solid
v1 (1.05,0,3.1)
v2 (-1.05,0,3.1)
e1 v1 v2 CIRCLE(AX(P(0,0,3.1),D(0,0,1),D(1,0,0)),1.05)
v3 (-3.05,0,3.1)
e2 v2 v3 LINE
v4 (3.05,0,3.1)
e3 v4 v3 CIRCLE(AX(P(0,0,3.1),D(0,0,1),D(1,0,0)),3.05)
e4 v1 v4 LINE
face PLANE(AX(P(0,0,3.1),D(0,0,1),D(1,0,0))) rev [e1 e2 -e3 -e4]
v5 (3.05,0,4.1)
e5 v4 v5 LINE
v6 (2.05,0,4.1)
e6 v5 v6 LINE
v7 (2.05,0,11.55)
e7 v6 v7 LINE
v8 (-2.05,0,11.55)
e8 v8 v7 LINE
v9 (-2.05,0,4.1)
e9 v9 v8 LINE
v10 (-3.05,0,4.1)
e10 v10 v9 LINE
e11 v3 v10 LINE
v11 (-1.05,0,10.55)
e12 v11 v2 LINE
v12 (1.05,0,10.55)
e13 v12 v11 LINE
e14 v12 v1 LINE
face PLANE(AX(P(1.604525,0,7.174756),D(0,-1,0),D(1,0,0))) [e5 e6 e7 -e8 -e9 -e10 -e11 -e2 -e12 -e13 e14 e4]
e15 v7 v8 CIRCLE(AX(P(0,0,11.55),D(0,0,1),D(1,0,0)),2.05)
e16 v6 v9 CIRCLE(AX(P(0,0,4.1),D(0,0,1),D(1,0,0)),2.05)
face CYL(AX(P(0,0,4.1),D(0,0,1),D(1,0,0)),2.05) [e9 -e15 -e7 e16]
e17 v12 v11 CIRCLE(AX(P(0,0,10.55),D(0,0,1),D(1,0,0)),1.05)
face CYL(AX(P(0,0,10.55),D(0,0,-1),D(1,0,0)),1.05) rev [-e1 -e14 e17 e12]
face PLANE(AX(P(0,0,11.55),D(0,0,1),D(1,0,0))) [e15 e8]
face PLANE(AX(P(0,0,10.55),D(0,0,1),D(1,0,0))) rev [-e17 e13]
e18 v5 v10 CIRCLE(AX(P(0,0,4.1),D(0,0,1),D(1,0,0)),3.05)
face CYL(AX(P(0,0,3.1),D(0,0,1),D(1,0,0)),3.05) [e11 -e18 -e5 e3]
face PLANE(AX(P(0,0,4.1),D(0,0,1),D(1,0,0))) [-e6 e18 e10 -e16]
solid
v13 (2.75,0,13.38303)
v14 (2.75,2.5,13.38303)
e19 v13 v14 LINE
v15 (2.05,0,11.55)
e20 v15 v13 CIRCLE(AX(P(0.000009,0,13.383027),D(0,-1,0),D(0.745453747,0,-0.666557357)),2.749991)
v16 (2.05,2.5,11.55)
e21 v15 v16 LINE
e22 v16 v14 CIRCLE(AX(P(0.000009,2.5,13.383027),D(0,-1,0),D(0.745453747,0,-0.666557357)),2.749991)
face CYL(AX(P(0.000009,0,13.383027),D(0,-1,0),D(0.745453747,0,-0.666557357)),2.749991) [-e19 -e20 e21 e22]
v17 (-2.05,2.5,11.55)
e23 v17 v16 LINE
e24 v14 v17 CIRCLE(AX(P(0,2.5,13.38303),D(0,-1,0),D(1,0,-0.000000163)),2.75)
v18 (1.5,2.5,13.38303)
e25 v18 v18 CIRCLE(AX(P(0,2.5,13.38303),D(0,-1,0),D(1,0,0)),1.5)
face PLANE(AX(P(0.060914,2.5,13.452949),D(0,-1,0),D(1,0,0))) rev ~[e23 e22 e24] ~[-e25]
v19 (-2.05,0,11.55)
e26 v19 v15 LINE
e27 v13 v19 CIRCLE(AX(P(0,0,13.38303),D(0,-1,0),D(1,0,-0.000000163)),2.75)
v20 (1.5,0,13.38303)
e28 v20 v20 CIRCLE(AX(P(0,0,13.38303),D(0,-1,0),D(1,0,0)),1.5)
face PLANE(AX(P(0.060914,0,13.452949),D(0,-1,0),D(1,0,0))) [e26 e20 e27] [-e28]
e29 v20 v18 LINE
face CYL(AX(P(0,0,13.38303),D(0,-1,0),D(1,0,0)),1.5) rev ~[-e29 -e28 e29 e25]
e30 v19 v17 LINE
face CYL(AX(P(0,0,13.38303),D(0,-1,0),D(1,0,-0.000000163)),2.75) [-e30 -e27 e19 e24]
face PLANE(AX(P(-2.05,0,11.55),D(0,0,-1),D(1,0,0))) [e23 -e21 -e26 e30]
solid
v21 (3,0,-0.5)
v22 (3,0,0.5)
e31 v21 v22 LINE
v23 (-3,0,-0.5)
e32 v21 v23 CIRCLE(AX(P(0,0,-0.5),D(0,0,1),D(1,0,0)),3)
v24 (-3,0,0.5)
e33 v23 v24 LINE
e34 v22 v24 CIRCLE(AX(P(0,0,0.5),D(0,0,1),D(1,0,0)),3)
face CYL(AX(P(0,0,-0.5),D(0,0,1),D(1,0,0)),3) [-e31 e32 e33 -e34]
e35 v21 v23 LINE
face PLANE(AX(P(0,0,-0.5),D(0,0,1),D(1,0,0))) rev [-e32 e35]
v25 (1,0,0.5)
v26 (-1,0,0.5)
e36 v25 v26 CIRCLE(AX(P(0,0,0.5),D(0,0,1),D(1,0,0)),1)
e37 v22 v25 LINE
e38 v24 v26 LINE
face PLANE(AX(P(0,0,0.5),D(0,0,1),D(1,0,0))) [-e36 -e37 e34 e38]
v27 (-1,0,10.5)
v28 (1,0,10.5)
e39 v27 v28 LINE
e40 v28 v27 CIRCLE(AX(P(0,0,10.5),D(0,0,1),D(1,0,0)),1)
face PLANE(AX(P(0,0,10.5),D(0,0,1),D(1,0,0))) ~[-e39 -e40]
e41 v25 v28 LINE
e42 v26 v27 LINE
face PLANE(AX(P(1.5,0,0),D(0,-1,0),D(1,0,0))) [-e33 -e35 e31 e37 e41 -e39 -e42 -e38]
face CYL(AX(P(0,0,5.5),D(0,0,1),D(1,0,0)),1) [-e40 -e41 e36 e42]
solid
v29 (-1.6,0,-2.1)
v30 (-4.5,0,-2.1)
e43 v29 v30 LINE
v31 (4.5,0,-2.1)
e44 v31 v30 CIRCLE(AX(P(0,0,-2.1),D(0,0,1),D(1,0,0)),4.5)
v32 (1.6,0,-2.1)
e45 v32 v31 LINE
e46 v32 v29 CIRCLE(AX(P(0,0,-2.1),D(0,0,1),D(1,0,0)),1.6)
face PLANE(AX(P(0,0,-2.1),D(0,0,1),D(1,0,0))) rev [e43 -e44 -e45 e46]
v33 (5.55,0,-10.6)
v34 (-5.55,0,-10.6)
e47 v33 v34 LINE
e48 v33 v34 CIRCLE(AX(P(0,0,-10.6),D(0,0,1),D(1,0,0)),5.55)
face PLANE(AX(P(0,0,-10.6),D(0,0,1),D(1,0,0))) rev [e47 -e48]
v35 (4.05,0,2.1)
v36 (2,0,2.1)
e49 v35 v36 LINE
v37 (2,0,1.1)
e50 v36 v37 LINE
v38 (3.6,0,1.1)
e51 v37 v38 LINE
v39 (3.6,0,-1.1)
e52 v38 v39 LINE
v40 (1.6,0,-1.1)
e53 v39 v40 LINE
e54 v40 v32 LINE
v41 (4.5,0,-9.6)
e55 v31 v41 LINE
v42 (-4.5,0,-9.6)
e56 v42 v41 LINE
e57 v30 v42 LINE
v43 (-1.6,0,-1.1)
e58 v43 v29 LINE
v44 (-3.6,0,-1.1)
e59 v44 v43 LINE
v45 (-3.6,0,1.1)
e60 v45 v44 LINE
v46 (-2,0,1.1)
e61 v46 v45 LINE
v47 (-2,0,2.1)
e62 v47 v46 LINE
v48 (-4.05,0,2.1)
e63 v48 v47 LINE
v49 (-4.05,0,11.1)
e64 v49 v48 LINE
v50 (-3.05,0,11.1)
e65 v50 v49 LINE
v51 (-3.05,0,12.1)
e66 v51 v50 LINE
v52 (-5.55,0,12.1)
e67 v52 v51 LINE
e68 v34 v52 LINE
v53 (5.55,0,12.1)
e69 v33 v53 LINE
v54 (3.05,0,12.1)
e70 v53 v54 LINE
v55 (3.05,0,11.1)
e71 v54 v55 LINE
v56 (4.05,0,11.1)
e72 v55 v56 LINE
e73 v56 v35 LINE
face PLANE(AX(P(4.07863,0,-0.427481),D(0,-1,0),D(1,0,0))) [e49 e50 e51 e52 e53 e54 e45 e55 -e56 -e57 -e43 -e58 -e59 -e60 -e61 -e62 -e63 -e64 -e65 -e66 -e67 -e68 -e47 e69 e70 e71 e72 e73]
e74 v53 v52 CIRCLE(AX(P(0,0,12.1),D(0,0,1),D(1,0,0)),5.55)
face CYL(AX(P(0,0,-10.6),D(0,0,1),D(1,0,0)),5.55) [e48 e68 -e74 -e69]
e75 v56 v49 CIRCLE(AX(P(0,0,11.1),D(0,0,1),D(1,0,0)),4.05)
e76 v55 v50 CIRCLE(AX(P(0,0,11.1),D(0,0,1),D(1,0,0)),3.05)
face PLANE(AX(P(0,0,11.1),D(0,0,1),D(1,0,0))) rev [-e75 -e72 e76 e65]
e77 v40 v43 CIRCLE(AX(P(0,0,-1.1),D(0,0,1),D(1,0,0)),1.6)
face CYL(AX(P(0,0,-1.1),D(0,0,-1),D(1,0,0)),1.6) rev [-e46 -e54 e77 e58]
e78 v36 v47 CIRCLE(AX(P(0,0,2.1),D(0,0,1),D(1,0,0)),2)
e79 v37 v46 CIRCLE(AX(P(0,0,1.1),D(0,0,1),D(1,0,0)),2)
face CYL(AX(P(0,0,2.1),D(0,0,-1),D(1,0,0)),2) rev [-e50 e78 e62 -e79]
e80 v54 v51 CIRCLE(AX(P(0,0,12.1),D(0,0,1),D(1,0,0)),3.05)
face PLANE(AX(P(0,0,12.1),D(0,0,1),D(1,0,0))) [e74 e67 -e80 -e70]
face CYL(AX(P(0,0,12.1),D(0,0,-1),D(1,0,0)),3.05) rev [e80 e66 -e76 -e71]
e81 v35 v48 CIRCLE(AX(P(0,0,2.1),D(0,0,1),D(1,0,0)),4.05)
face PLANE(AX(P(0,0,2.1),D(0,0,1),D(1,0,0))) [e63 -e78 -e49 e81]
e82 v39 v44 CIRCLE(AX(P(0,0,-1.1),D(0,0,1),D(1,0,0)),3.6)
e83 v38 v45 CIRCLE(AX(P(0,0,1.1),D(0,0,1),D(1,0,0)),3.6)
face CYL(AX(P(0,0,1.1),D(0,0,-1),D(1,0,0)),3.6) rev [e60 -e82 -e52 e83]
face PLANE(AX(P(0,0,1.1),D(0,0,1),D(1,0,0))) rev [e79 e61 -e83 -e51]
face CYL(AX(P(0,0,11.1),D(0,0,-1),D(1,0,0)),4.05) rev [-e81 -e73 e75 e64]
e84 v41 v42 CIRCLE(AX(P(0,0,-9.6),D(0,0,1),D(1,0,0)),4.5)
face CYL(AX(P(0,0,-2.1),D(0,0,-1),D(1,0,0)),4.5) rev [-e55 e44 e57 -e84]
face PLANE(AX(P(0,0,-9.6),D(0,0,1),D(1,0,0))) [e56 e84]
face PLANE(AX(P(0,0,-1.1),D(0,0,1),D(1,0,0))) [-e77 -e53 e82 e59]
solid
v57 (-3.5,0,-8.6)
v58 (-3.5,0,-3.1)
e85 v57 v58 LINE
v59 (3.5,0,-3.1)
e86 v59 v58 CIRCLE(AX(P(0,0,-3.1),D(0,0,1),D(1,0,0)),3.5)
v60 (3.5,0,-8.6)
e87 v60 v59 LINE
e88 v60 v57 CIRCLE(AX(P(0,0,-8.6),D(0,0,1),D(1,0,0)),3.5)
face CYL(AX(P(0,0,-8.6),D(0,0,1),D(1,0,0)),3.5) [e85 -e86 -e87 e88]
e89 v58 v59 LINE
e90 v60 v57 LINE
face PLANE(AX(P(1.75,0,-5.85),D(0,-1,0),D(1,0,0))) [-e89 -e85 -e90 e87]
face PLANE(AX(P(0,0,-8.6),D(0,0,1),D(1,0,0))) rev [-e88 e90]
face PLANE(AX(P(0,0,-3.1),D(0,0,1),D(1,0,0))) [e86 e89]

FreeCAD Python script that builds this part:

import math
import FreeCAD as App
import Part
import Sketcher
from FreeCAD import Vector
Q = App.Units.Quantity

doc = App.newDocument("Part")
body = doc.addObject("PartDesign::Body", "Body")
body.AllowCompound = True

# Sketch on XZ plane
sketch1 = body.newObject("Sketcher::SketchObject", "Sketch")
sketch1.AttachmentSupport = (doc.getObject("XZ_Plane"), [""])
sketch1.MapMode = "FlatFace"
sketch1.addGeometry(Part.LineSegment(Vector(3.5, -3.1, 0), Vector(0, -3.1, 0)), False)
sketch1.addGeometry(Part.LineSegment(Vector(0, -3.1, 0), Vector(0, -8.6, 0)), False)
sketch1.addGeometry(Part.LineSegment(Vector(0, -8.6, 0), Vector(3.5, -8.6, 0)), False)
sketch1.addGeometry(Part.LineSegment(Vector(3.5, -8.6, 0), Vector(3.5, -3.1, 0)), False)
sketch1.addGeometry(Part.LineSegment(Vector(3, -0.5, 0), Vector(3, 0.5, 0)), False)
sketch1.addGeometry(Part.LineSegment(Vector(3, 0.5, 0), Vector(1, 0.5, 0)), False)
sketch1.addGeometry(Part.LineSegment(Vector(1, 0.5, 0), Vector(1, 10.5, 0)), False)
sketch1.addGeometry(Part.LineSegment(Vector(1, 10.5, 0), Vector(0, 10.5, 0)), False)
sketch1.addGeometry(Part.LineSegment(Vector(0, 10.5, 0), Vector(0, -0.5, 0)), False)
sketch1.addGeometry(Part.LineSegment(Vector(0, -0.5, 0), Vector(3, -0.5, 0)), False)
sketch1.addGeometry(Part.LineSegment(Vector(0, 10.6, 0), Vector(1.1, 10.6, 0)), False)
sketch1.addGeometry(Part.LineSegment(Vector(1.1, 10.6, 0), Vector(1.1, 3.1, 0)), False)
sketch1.addGeometry(Part.LineSegment(Vector(1.1, 3.1, 0), Vector(3, 3.1, 0)), False)
sketch1.addGeometry(Part.LineSegment(Vector(3, 3.1, 0), Vector(3, 4.1, 0)), False)
sketch1.addGeometry(Part.LineSegment(Vector(3, 4.1, 0), Vector(2, 4.1, 0)), False)
sketch1.addGeometry(Part.LineSegment(Vector(2, 4.1, 0), Vector(2, 11.6, 0)), False)
sketch1.addGeometry(Part.LineSegment(Vector(2, 11.6, 0), Vector(0, 11.6, 0)), False)
sketch1.addGeometry(Part.LineSegment(Vector(0, 11.6, 0), Vector(0, 10.6, 0)), False)
sketch1.addGeometry(Part.LineSegment(Vector(4.5, -9.6, 0), Vector(0, -9.6, 0)), False)
sketch1.addGeometry(Part.LineSegment(Vector(0, -9.6, 0), Vector(0, -10.6, 0)), False)
sketch1.addGeometry(Part.LineSegment(Vector(0, -10.6, 0), Vector(5.5, -10.6, 0)), False)
sketch1.addGeometry(Part.LineSegment(Vector(5.5, -10.6, 0), Vector(5.5, 12.1, 0)), False)
sketch1.addGeometry(Part.LineSegment(Vector(5.5, 12.1, 0), Vector(3, 12.1, 0)), False)
sketch1.addGeometry(Part.LineSegment(Vector(3, 12.1, 0), Vector(3, 11.1, 0)), False)
sketch1.addGeometry(Part.LineSegment(Vector(3, 11.1, 0), Vector(4, 11.1, 0)), False)
sketch1.addGeometry(Part.LineSegment(Vector(4, 11.1, 0), Vector(4, 2.1, 0)), False)
sketch1.addGeometry(Part.LineSegment(Vector(4, 2.1, 0), Vector(2, 2.1, 0)), False)
sketch1.addGeometry(Part.LineSegment(Vector(2, 2.1, 0), Vector(2, 1.1, 0)), False)
sketch1.addGeometry(Part.LineSegment(Vector(2, 1.1, 0), Vector(3.6, 1.1, 0)), False)
sketch1.addGeometry(Part.LineSegment(Vector(3.6, 1.1, 0), Vector(3.6, -1.1, 0)), False)
sketch1.addGeometry(Part.LineSegment(Vector(3.6, -1.1, 0), Vector(1.6, -1.1, 0)), False)
sketch1.addGeometry(Part.LineSegment(Vector(1.6, -1.1, 0), Vector(1.6, -2.1, 0)), False)
sketch1.addGeometry(Part.LineSegment(Vector(1.6, -2.1, 0), Vector(4.5, -2.1, 0)), False)
sketch1.addGeometry(Part.LineSegment(Vector(4.5, -2.1, 0), Vector(4.5, -9.6, 0)), False)
sketch1.addConstraint(Sketcher.Constraint("Coincident", 0, 2, 1, 1))
sketch1.addConstraint(Sketcher.Constraint("Coincident", 1, 2, 2, 1))
sketch1.addConstraint(Sketcher.Constraint("Coincident", 2, 2, 3, 1))
sketch1.addConstraint(Sketcher.Constraint("Coincident", 3, 2, 0, 1))
sketch1.addConstraint(Sketcher.Constraint("Coincident", 4, 2, 5, 1))
sketch1.addConstraint(Sketcher.Constraint("Coincident", 5, 2, 6, 1))
sketch1.addConstraint(Sketcher.Constraint("Coincident", 6, 2, 7, 1))
sketch1.addConstraint(Sketcher.Constraint("Coincident", 7, 2, 8, 1))
sketch1.addConstraint(Sketcher.Constraint("Coincident", 8, 2, 9, 1))
sketch1.addConstraint(Sketcher.Constraint("Coincident", 9, 2, 4, 1))
sketch1.addConstraint(Sketcher.Constraint("Coincident", 10, 2, 11, 1))
sketch1.addConstraint(Sketcher.Constraint("Coincident", 11, 2, 12, 1))
sketch1.addConstraint(Sketcher.Constraint("Coincident", 12, 2, 13, 1))
sketch1.addConstraint(Sketcher.Constraint("Coincident", 13, 2, 14, 1))
sketch1.addConstraint(Sketcher.Constraint("Coincident", 14, 2, 15, 1))
sketch1.addConstraint(Sketcher.Constraint("Coincident", 15, 2, 16, 1))
sketch1.addConstraint(Sketcher.Constraint("Coincident", 16, 2, 17, 1))
sketch1.addConstraint(Sketcher.Constraint("Coincident", 17, 2, 10, 1))
sketch1.addConstraint(Sketcher.Constraint("Coincident", 18, 2, 19, 1))
sketch1.addConstraint(Sketcher.Constraint("Coincident", 19, 2, 20, 1))
sketch1.addConstraint(Sketcher.Constraint("Coincident", 20, 2, 21, 1))
sketch1.addConstraint(Sketcher.Constraint("Coincident", 21, 2, 22, 1))
sketch1.addConstraint(Sketcher.Constraint("Coincident", 22, 2, 23, 1))
sketch1.addConstraint(Sketcher.Constraint("Coincident", 23, 2, 24, 1))
sketch1.addConstraint(Sketcher.Constraint("Coincident", 24, 2, 25, 1))
sketch1.addConstraint(Sketcher.Constraint("Coincident", 25, 2, 26, 1))
sketch1.addConstraint(Sketcher.Constraint("Coincident", 26, 2, 27, 1))
sketch1.addConstraint(Sketcher.Constraint("Coincident", 27, 2, 28, 1))
sketch1.addConstraint(Sketcher.Constraint("Coincident", 28, 2, 29, 1))
sketch1.addConstraint(Sketcher.Constraint("Coincident", 29, 2, 30, 1))
sketch1.addConstraint(Sketcher.Constraint("Coincident", 30, 2, 31, 1))
sketch1.addConstraint(Sketcher.Constraint("Coincident", 31, 2, 32, 1))
sketch1.addConstraint(Sketcher.Constraint("Coincident", 32, 2, 33, 1))
sketch1.addConstraint(Sketcher.Constraint("Coincident", 33, 2, 18, 1))
sketch1.addConstraint(Sketcher.Constraint("Horizontal", 0))
sketch1.addConstraint(Sketcher.Constraint("Vertical", 1))
sketch1.addConstraint(Sketcher.Constraint("Horizontal", 2))
sketch1.addConstraint(Sketcher.Constraint("Vertical", 3))
sketch1.addConstraint(Sketcher.Constraint("Vertical", 4))
sketch1.addConstraint(Sketcher.Constraint("Horizontal", 5))
sketch1.addConstraint(Sketcher.Constraint("Vertical", 6))
sketch1.addConstraint(Sketcher.Constraint("Horizontal", 7))
sketch1.addConstraint(Sketcher.Constraint("Vertical", 8))
sketch1.addConstraint(Sketcher.Constraint("Horizontal", 9))
sketch1.addConstraint(Sketcher.Constraint("Horizontal", 10))
sketch1.addConstraint(Sketcher.Constraint("Vertical", 11))
sketch1.addConstraint(Sketcher.Constraint("Horizontal", 12))
sketch1.addConstraint(Sketcher.Constraint("Vertical", 13))
sketch1.addConstraint(Sketcher.Constraint("Horizontal", 14))
sketch1.addConstraint(Sketcher.Constraint("Vertical", 15))
sketch1.addConstraint(Sketcher.Constraint("Horizontal", 16))
sketch1.addConstraint(Sketcher.Constraint("Vertical", 17))
sketch1.addConstraint(Sketcher.Constraint("Horizontal", 18))
sketch1.addConstraint(Sketcher.Constraint("Vertical", 19))
sketch1.addConstraint(Sketcher.Constraint("Horizontal", 20))
sketch1.addConstraint(Sketcher.Constraint("Vertical", 21))
sketch1.addConstraint(Sketcher.Constraint("Horizontal", 22))
sketch1.addConstraint(Sketcher.Constraint("Vertical", 23))
sketch1.addConstraint(Sketcher.Constraint("Horizontal", 24))
sketch1.addConstraint(Sketcher.Constraint("Vertical", 25))
sketch1.addConstraint(Sketcher.Constraint("Horizontal", 26))
sketch1.addConstraint(Sketcher.Constraint("Vertical", 27))
sketch1.addConstraint(Sketcher.Constraint("Horizontal", 28))
sketch1.addConstraint(Sketcher.Constraint("Vertical", 29))
sketch1.addConstraint(Sketcher.Constraint("Horizontal", 30))
sketch1.addConstraint(Sketcher.Constraint("Vertical", 31))
sketch1.addConstraint(Sketcher.Constraint("Horizontal", 32))
sketch1.addConstraint(Sketcher.Constraint("Vertical", 33))
sketch1.addConstraint(Sketcher.Constraint("PointOnObject", 0, 2, -2))
sketch1.addConstraint(Sketcher.Constraint("PointOnObject", 7, 2, -2))
sketch1.addConstraint(Sketcher.Constraint("PointOnObject", 16, 2, -2))
sketch1.addConstraint(Sketcher.Constraint("PointOnObject", 18, 2, -2))
sketch1.addConstraint(Sketcher.Constraint("Vertical", 13, 2, 22, 2))
sketch1.addConstraint(Sketcher.Constraint("Equal", 5, 12))
sketch1.addConstraint(Sketcher.Constraint("Equal", 7, 14))
sketch1.addConstraint(Sketcher.Constraint("Equal", 14, 24))
sketch1.addConstraint(Sketcher.Constraint("Equal", 16, 26))
sketch1.addConstraint(Sketcher.Constraint("Equal", 12, 30))
sketch1.addConstraint(Sketcher.Constraint("Equal", 24, 4))
sketch1.addConstraint(Sketcher.Constraint("Equal", 4, 13))
sketch1.addConstraint(Sketcher.Constraint("Equal", 11, 15))
sketch1.addConstraint(Sketcher.Constraint("Equal", 17, 19))
sketch1.addConstraint(Sketcher.Constraint("Equal", 19, 23))
sketch1.addConstraint(Sketcher.Constraint("Equal", 23, 27))
sketch1.addConstraint(Sketcher.Constraint("Equal", 27, 31))
sketch1.addConstraint(Sketcher.Constraint("DistanceX", 5, 2, 5, 1, Q("2 mm")))
sketch1.addConstraint(Sketcher.Constraint("DistanceX", 7, 2, 7, 1, Q("1 mm")))
sketch1.addConstraint(Sketcher.Constraint("DistanceY", 6, 1, 6, 2, Q("10 mm")))
sketch1.addConstraint(Sketcher.Constraint("DistanceY", 25, 2, 25, 1, Q("9 mm")))
sketch1.addConstraint(Sketcher.Constraint("DistanceX", 0, 2, 0, 1, Q("3.5 mm")))
sketch1.addConstraint(Sketcher.Constraint("DistanceX", 18, 2, 18, 1, Q("4.5 mm")))
sketch1.addConstraint(Sketcher.Constraint("DistanceX", 22, 2, 22, 1, Q("2.5 mm")))
sketch1.addConstraint(Sketcher.Constraint("DistanceX", 28, 1, 28, 2, Q("1.6 mm")))
sketch1.addConstraint(Sketcher.Constraint("DistanceY", 1, 2, 1, 1, Q("5.5 mm")))
sketch1.addConstraint(Sketcher.Constraint("DistanceY", 21, 1, 21, 2, Q("22.7 mm")))
sketch1.addConstraint(Sketcher.Constraint("DistanceY", 29, 2, 29, 1, Q("2.2 mm")))
sketch1.addConstraint(Sketcher.Constraint("DistanceY", 18, 2, 1, 2, Q("1 mm")))
sketch1.addConstraint(Sketcher.Constraint("DistanceY", 25, 2, 12, 2, Q("1 mm")))
sketch1.addConstraint(Sketcher.Constraint("DistanceX", 10, 1, 10, 2, Q("1.05 mm")))
sketch1.addConstraint(Sketcher.Constraint("DistanceY", 11, 2, 11, 1, Q("7.45 mm")))
sketch1.addConstraint(Sketcher.Constraint("DistanceY", 0, 2, -1, 1, Q("3.1 mm")))
sketch1.addConstraint(Sketcher.Constraint("DistanceY", -1, 1, 4, 2, Q("0.5 mm")))
revolution = body.newObject("PartDesign::Revolution", "Revolution")
revolution.Profile = sketch1
revolution.ReferenceAxis = (sketch1, ["V_Axis"])
revolution.Angle = 180
body2 = doc.addObject("PartDesign::Body", "Body001")

# Sketch on XZ plane
sketch2 = body2.newObject("Sketcher::SketchObject", "Sketch001")
sketch2.AttachmentSupport = (doc.getObject("XZ_Plane001"), [""])
sketch2.MapMode = "FlatFace"
sketch2.addGeometry(Part.ArcOfCircle(Part.Circle(Vector(0, 13.4, 0), Vector(0, 0, 1), 2.8), math.radians(0), math.radians(222)), False)
sketch2.addGeometry(Part.LineSegment(Vector(-2, 11.6, 0), Vector(2, 11.6, 0)), False)
sketch2.addGeometry(Part.ArcOfCircle(Part.Circle(Vector(0, 13.4, 0), Vector(0, 0, 1), 2.7), math.radians(-42), math.radians(0)), False)
sketch2.addGeometry(Part.Circle(Vector(0, 13.4, 0), Vector(0, 0, 1), 1.5), False)
sketch2.addConstraint(Sketcher.Constraint("Coincident", 0, 2, 1, 1))
sketch2.addConstraint(Sketcher.Constraint("Coincident", 1, 2, 2, 1))
sketch2.addConstraint(Sketcher.Constraint("Tangent", 2, 2, 0, 1))
sketch2.addConstraint(Sketcher.Constraint("Horizontal", 1))
sketch2.addConstraint(Sketcher.Constraint("Coincident", 3, 3, 0, 3))
sketch2.addConstraint(Sketcher.Constraint("PointOnObject", 0, 3, -2))
sketch2.addConstraint(Sketcher.Constraint("Horizontal", 3, 3, 2, 2))
sketch2.addConstraint(Sketcher.Constraint("Diameter", 3, Q("3 mm")))
sketch2.addConstraint(Sketcher.Constraint("Radius", 0, Q("2.75 mm")))
sketch2.addConstraint(Sketcher.Constraint("DistanceX", 1, 1, 1, 2, Q("4.1 mm")))
sketch2.addConstraint(Sketcher.Constraint("DistanceX", 1, 2, 2, 2, Q("0.7 mm")))
sketch2.addConstraint(Sketcher.Constraint("DistanceY", -1, 1, 0, 2, Q("11.55 mm")))
pad1 = body2.newObject("PartDesign::Pad", "Pad")
pad1.Profile = sketch2
pad1.Length = 2.5
pad1.Reversed = True

doc.recompute()
